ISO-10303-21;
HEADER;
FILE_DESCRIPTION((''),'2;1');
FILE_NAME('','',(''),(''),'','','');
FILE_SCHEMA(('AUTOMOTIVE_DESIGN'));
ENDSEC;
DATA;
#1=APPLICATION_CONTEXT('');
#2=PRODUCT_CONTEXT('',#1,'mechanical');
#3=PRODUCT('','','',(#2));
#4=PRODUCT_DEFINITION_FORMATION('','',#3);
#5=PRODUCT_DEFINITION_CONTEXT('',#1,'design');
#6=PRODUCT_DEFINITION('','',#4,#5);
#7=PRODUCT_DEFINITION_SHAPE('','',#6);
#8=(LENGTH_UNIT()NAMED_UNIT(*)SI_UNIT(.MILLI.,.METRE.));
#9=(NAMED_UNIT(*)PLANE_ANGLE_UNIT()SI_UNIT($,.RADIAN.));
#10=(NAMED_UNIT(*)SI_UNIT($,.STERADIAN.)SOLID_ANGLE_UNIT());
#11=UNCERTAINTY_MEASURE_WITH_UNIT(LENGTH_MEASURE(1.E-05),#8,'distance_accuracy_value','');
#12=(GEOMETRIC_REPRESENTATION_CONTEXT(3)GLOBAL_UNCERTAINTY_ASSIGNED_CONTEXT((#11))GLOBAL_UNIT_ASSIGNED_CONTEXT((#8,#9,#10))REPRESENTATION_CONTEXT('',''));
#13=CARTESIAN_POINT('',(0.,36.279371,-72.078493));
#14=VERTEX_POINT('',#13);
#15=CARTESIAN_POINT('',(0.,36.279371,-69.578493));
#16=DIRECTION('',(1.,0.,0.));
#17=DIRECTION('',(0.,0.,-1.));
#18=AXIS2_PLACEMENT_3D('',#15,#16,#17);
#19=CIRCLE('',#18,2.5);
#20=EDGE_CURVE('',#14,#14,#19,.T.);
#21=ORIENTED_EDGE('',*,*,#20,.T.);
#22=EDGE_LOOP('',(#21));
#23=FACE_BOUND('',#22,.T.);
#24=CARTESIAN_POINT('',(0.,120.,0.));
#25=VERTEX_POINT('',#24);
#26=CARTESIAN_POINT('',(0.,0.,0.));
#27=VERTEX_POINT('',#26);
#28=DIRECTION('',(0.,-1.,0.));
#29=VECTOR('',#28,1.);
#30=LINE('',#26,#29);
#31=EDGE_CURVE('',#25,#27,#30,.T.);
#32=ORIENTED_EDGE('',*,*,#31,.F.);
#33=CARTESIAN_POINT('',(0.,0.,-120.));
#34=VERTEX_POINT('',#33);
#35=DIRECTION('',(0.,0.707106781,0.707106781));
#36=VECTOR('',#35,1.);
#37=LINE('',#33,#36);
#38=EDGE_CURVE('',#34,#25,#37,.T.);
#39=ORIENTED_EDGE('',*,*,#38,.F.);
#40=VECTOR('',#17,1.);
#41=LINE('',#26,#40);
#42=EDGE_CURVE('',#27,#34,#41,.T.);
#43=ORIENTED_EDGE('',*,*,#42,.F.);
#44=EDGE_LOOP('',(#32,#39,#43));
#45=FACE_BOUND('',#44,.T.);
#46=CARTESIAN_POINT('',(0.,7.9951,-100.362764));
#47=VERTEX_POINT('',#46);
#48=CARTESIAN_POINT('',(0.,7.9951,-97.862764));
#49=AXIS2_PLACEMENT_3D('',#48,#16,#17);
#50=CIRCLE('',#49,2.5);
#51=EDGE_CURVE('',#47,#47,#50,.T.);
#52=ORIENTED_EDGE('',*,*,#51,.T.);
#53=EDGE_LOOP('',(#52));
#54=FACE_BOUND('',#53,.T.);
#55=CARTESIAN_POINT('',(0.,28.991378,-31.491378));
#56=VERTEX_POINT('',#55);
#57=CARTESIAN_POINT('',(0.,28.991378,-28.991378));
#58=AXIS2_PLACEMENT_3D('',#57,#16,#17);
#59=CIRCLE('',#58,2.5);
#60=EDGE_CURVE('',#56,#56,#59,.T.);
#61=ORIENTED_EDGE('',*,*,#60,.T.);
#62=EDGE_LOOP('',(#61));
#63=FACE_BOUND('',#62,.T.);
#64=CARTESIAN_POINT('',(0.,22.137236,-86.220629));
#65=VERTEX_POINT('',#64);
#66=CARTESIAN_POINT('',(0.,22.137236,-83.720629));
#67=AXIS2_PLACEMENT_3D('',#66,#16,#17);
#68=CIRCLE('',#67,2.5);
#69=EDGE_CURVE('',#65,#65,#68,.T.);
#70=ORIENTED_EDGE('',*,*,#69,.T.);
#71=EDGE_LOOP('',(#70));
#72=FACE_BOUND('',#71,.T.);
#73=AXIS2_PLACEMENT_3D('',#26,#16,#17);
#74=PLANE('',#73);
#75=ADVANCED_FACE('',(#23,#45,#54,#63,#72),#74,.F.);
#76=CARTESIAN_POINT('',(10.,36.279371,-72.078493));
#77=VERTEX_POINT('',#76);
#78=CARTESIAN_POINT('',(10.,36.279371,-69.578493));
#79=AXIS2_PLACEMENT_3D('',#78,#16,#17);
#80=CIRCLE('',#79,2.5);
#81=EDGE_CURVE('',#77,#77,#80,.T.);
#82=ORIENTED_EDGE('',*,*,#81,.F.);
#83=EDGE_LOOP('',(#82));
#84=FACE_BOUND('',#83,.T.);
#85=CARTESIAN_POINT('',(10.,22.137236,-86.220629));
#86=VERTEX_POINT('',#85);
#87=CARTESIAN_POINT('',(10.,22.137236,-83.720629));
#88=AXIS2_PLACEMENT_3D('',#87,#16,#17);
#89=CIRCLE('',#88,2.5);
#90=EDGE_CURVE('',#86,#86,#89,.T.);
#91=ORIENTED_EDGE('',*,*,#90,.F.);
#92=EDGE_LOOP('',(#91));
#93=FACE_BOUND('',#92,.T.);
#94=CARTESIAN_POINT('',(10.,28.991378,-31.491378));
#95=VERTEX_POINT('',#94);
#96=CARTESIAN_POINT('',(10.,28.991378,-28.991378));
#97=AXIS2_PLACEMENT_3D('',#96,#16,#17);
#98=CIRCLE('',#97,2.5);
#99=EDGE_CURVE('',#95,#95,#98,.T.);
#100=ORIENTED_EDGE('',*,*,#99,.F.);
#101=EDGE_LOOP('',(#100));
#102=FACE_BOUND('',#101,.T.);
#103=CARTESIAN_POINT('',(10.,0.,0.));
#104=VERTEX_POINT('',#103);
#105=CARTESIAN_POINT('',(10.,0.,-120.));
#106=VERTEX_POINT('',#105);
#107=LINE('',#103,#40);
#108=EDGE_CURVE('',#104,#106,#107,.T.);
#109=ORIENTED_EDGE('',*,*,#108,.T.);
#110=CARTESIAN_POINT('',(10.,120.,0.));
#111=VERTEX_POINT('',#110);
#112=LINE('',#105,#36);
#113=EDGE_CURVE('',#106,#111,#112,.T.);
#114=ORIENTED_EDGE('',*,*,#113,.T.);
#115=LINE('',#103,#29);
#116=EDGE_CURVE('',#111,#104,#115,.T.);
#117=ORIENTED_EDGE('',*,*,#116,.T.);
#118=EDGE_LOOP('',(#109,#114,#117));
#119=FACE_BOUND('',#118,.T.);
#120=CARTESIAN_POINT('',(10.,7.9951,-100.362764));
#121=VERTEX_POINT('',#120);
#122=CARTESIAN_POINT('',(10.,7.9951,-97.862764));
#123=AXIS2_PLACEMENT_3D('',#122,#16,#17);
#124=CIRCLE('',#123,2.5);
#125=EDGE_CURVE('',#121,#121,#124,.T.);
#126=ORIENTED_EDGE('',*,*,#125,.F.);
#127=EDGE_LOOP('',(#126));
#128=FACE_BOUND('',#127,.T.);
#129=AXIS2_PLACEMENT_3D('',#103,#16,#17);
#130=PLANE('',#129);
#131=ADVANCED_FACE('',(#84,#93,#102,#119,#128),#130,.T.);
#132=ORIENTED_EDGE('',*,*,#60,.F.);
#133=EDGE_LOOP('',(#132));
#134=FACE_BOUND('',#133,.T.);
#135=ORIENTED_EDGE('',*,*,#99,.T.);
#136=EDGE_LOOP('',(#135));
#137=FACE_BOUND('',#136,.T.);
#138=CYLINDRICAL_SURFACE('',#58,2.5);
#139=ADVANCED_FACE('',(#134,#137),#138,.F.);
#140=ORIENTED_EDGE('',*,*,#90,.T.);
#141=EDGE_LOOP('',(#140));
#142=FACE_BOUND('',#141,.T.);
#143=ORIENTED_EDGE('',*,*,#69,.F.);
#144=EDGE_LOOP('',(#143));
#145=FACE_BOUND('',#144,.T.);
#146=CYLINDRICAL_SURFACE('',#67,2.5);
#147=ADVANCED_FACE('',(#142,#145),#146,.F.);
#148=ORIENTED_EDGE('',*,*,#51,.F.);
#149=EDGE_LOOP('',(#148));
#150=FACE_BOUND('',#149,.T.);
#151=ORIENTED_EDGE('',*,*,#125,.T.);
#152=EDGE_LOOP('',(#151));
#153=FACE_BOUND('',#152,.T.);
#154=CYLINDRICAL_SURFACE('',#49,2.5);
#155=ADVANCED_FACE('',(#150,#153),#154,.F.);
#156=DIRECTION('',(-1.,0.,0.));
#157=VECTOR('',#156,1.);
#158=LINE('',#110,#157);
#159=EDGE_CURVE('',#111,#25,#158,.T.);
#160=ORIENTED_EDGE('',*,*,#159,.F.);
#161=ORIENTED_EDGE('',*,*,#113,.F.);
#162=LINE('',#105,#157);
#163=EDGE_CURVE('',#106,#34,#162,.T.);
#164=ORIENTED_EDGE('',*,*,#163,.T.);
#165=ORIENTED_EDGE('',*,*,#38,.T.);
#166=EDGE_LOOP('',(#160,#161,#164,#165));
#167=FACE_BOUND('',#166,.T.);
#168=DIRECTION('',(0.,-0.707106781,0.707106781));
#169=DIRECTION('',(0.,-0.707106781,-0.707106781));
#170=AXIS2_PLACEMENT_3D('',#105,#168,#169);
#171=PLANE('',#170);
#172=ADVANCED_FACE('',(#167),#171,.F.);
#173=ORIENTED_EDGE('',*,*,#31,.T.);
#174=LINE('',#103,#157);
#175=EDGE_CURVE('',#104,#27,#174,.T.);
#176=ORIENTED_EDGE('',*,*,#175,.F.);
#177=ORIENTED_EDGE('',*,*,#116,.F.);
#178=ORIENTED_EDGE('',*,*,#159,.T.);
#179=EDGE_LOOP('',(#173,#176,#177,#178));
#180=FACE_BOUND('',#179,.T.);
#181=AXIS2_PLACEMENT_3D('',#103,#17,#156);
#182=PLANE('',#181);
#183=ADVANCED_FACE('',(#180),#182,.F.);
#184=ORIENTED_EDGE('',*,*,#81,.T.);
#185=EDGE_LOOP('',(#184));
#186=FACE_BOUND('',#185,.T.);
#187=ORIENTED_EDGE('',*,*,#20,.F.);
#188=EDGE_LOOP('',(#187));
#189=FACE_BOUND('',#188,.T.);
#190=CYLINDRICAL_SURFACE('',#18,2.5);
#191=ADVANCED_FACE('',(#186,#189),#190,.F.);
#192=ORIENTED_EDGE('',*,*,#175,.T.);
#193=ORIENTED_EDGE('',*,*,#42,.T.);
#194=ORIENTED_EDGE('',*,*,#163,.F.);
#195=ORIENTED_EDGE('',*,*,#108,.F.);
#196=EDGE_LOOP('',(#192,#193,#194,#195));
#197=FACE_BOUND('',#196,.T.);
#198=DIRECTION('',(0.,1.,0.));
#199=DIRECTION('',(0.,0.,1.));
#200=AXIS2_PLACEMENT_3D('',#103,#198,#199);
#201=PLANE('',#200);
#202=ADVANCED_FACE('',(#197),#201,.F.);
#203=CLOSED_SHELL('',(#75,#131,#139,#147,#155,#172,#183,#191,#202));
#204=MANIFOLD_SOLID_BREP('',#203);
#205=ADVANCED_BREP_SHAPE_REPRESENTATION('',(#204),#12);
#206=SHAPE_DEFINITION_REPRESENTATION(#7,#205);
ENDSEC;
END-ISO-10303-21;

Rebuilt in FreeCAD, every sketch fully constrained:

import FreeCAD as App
import Part
import Sketcher
from FreeCAD import Vector


def add_polygon(sketch, points):
    """Adds a closed chain of lines whose ends are joined by coincident constraints."""
    first, n = sketch.GeometryCount, len(points)
    for a, b in zip(points, points[1:] + points[:1]):
        sketch.addGeometry(Part.LineSegment(App.Vector(*a, 0), App.Vector(*b, 0)), False)
    for i in range(n):
        sketch.addConstraint(Sketcher.Constraint("Coincident", first + i, 2, first + (i + 1) % n, 1))

doc = App.newDocument("Part")
body = doc.addObject("PartDesign::Body", "Body")

# Sketch on YZ plane
sketch1 = doc.addObject("Sketcher::SketchObject", "Sketch")
body.addObject(sketch1)
sketch1.AttachmentSupport = (doc.YZ_Plane, [""])
sketch1.MapMode = "FlatFace"
add_polygon(sketch1, [(120, 0), (0, 0), (0, -120)])  # lines 0-2
sketch1.addConstraint([
    Sketcher.Constraint("Horizontal", 0),
    Sketcher.Constraint("Vertical", 1),
    Sketcher.Constraint("Coincident", 0, 2, -1, 1),
    Sketcher.Constraint("Equal", 0, 1),
    Sketcher.Constraint("DistanceX", 0, 2, 0, 1, 120.0),
])
pad1 = doc.addObject("PartDesign::Pad", "Pad")
body.addObject(pad1)
pad1.Profile = sketch1
pad1.Length = 10

# Sketch on YZ plane
sketch2 = doc.addObject("Sketcher::SketchObject", "Sketch001")
body.addObject(sketch2)
sketch2.AttachmentSupport = (doc.YZ_Plane, [""])
sketch2.MapMode = "FlatFace"
sketch2.AttachmentOffset = App.Placement(Vector(0, 0, 10), App.Rotation())
sketch2.addGeometry([
    Part.Circle(Vector(22.1, -83.7, 0), Vector(0, 0, 1), 2.5),
    Part.Circle(Vector(8, -97.9, 0), Vector(0, 0, 1), 2.5),
    Part.Circle(Vector(36.3, -69.6, 0), Vector(0, 0, 1), 2.5),
    Part.Circle(Vector(29, -29, 0), Vector(0, 0, 1), 2.5),
], False)
sketch2.addConstraint([
    Sketcher.Constraint("Equal", 0, 1),
    Sketcher.Constraint("Equal", 1, 2),
    Sketcher.Constraint("Equal", 2, 3),
    Sketcher.Constraint("Diameter", 0, 5.0),
    Sketcher.Constraint("DistanceX", -1, 1, 1, 3, 7.9951),
    Sketcher.Constraint("DistanceY", 0, 3, -1, 1, 83.720629),
    Sketcher.Constraint("DistanceX", -1, 1, 2, 3, 36.279371),
    Sketcher.Constraint("DistanceX", -1, 1, 3, 3, 28.991378),
    Sketcher.Constraint("DistanceY", 3, 3, -1, 1, 28.991378),
    Sketcher.Constraint("DistanceY", 1, 3, 2, 3, 28.284271),
    Sketcher.Constraint("DistanceX", -1, 1, 0, 3, 22.137236),
    Sketcher.Constraint("DistanceY", 1, 3, -1, 1, 97.862764),
])
pocket1 = doc.addObject("PartDesign::Pocket", "Pocket")
body.addObject(pocket1)
pocket1.Profile = sketch2
pocket1.Length = 10

doc.recompute()
